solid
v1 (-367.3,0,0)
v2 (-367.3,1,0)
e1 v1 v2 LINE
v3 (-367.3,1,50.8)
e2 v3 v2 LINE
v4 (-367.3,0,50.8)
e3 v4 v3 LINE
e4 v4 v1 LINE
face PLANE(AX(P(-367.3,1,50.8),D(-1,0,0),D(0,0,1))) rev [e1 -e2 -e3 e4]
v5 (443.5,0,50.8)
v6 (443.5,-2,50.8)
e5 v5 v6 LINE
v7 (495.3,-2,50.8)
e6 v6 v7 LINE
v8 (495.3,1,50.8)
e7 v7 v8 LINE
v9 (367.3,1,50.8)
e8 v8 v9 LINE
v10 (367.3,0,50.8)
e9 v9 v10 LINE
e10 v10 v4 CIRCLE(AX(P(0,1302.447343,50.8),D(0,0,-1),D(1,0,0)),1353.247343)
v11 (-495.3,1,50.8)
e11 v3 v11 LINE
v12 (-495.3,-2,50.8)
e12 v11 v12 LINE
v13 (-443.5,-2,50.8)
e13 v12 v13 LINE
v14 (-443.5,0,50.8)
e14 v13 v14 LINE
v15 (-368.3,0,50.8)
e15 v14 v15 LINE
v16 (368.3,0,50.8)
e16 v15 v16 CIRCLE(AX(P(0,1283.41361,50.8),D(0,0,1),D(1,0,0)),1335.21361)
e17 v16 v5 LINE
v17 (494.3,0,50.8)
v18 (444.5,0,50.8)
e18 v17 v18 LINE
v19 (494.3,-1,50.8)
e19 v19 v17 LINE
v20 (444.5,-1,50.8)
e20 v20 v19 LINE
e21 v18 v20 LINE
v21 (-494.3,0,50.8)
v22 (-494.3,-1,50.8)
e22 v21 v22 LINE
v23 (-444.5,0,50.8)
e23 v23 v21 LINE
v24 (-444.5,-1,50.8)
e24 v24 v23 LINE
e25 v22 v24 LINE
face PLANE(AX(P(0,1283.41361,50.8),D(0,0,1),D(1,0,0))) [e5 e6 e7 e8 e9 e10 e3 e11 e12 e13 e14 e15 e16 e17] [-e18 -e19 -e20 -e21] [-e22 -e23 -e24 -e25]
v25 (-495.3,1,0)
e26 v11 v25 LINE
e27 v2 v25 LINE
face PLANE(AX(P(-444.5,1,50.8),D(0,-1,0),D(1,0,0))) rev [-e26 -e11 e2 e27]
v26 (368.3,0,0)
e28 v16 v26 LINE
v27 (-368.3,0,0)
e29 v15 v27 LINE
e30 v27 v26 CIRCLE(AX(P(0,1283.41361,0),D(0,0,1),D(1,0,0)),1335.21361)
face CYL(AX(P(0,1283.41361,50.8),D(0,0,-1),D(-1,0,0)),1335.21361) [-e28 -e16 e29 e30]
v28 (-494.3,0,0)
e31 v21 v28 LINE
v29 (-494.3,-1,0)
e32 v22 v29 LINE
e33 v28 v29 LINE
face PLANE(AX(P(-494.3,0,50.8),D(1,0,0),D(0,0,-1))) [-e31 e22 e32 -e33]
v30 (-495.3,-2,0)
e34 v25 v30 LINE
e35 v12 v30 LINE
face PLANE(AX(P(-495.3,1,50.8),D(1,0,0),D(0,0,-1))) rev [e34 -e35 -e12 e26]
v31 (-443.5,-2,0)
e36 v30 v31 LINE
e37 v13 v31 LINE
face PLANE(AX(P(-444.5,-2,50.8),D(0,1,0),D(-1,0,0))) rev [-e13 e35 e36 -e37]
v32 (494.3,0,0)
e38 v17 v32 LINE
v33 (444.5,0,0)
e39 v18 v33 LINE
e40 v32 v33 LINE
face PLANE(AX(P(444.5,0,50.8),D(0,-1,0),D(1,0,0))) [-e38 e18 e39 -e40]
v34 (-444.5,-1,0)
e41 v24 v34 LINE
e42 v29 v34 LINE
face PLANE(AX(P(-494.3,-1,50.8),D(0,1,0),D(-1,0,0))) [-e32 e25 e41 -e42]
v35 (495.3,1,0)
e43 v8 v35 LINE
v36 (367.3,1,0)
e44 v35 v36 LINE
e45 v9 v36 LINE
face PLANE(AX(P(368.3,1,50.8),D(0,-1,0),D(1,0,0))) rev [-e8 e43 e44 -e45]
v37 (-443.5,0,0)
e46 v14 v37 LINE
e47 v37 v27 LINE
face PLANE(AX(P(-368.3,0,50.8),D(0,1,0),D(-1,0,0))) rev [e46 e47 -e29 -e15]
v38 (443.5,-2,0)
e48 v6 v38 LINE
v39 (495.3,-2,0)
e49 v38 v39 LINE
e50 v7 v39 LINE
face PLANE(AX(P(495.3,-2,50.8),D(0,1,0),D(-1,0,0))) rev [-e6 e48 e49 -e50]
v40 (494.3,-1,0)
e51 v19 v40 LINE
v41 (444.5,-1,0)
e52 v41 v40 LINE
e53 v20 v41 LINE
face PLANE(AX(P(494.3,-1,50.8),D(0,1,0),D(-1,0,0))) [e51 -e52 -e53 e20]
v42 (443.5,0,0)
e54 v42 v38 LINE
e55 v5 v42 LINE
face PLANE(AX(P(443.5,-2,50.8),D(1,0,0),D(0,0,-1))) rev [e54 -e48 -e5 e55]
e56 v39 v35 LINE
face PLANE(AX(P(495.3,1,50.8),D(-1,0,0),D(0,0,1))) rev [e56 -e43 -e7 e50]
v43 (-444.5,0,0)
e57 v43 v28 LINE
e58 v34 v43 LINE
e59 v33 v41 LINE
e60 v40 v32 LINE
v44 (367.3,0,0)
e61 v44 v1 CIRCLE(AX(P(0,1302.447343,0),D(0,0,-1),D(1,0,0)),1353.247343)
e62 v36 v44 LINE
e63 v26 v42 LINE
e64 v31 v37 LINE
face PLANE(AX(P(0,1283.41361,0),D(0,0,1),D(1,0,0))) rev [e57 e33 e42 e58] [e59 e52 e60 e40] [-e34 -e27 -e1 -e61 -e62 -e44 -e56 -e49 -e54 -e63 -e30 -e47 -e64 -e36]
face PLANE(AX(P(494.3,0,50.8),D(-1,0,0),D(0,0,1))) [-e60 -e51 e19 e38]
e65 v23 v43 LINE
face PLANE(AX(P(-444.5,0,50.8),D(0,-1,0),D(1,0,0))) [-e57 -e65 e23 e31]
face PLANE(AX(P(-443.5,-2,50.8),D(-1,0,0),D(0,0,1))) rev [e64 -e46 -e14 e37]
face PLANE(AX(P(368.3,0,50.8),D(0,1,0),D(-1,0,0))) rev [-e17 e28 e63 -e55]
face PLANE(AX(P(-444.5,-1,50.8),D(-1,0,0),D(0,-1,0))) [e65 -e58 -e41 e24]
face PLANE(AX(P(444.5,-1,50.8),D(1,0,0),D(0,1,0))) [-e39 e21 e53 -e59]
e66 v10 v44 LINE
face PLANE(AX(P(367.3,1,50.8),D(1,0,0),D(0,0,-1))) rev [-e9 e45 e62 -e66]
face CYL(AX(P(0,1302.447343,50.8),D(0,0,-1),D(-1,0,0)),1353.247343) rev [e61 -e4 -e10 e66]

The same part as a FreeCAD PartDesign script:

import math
import FreeCAD as App
import Part
import Sketcher

V = App.Vector
Q = App.Units.Quantity

doc = App.newDocument("Part")
body = doc.addObject("PartDesign::Body", "Body")

sketch1 = body.newObject("Sketcher::SketchObject", "Sketch")
sketch1.AttachmentSupport = (doc.getObject("XY_Plane"), [""])
sketch1.MapMode = "FlatFace"
sketch1.addGeometry([
    Part.LineSegment(V(-495.3, 1, 0), V(-495.3, -2, 0)),
    Part.LineSegment(V(-495.3, -2, 0), V(-443.5, -2, 0)),
    Part.LineSegment(V(-443.5, -2, 0), V(-443.5, 0, 0)),
    Part.LineSegment(V(-443.5, 0, 0), V(-368.3, 0, 0)),
    Part.ArcOfCircle(Part.Circle(V(0, 1283.41361, 0), V(0, 0, 1), 1335.21361), math.radians(-106.011841), math.radians(-73.988159)),
    Part.LineSegment(V(368.3, 0, 0), V(443.5, 0, 0)),
    Part.LineSegment(V(443.5, 0, 0), V(443.5, -2, 0)),
    Part.LineSegment(V(443.5, -2, 0), V(495.3, -2, 0)),
    Part.LineSegment(V(495.3, -2, 0), V(495.3, 1, 0)),
    Part.LineSegment(V(495.3, 1, 0), V(367.3, 1, 0)),
    Part.LineSegment(V(367.3, 1, 0), V(367.3, 0, 0)),
    Part.ArcOfCircle(Part.Circle(V(0, 1302.447343, 0), V(0, 0, 1), 1353.247343), math.radians(-105.748853), math.radians(-74.251147)),
    Part.LineSegment(V(-367.3, 0, 0), V(-367.3, 1, 0)),
    Part.LineSegment(V(-367.3, 1, 0), V(-495.3, 1, 0)),
    Part.LineSegment(V(-444.5, -1, 0), V(-494.3, -1, 0)),
    Part.LineSegment(V(-494.3, -1, 0), V(-494.3, 0, 0)),
    Part.LineSegment(V(-494.3, 0, 0), V(-444.5, 0, 0)),
    Part.LineSegment(V(-444.5, 0, 0), V(-444.5, -1, 0)),
    Part.LineSegment(V(494.3, -1, 0), V(444.5, -1, 0)),
    Part.LineSegment(V(444.5, -1, 0), V(444.5, 0, 0)),
    Part.LineSegment(V(444.5, 0, 0), V(494.3, 0, 0)),
    Part.LineSegment(V(494.3, 0, 0), V(494.3, -1, 0)),
], False)
sketch1.addConstraint([
    Sketcher.Constraint("Coincident", 0, 2, 1, 1),
    Sketcher.Constraint("Coincident", 1, 2, 2, 1),
    Sketcher.Constraint("Coincident", 2, 2, 3, 1),
    Sketcher.Constraint("Coincident", 3, 2, 4, 1),
    Sketcher.Constraint("Coincident", 4, 2, 5, 1),
    Sketcher.Constraint("Coincident", 5, 2, 6, 1),
    Sketcher.Constraint("Coincident", 6, 2, 7, 1),
    Sketcher.Constraint("Coincident", 7, 2, 8, 1),
    Sketcher.Constraint("Coincident", 8, 2, 9, 1),
    Sketcher.Constraint("Coincident", 9, 2, 10, 1),
    Sketcher.Constraint("Coincident", 10, 2, 11, 2),
    Sketcher.Constraint("Coincident", 11, 1, 12, 1),
    Sketcher.Constraint("Coincident", 12, 2, 13, 1),
    Sketcher.Constraint("Coincident", 13, 2, 0, 1),
    Sketcher.Constraint("Coincident", 14, 2, 15, 1),
    Sketcher.Constraint("Coincident", 15, 2, 16, 1),
    Sketcher.Constraint("Coincident", 16, 2, 17, 1),
    Sketcher.Constraint("Coincident", 17, 2, 14, 1),
    Sketcher.Constraint("Coincident", 18, 2, 19, 1),
    Sketcher.Constraint("Coincident", 19, 2, 20, 1),
    Sketcher.Constraint("Coincident", 20, 2, 21, 1),
    Sketcher.Constraint("Coincident", 21, 2, 18, 1),
    Sketcher.Constraint("Vertical", 0),
    Sketcher.Constraint("Horizontal", 1),
    Sketcher.Constraint("Vertical", 2),
    Sketcher.Constraint("Horizontal", 3),
    Sketcher.Constraint("Horizontal", 5),
    Sketcher.Constraint("Vertical", 6),
    Sketcher.Constraint("Horizontal", 7),
    Sketcher.Constraint("Vertical", 8),
    Sketcher.Constraint("Horizontal", 9),
    Sketcher.Constraint("Vertical", 10),
    Sketcher.Constraint("Vertical", 12),
    Sketcher.Constraint("Horizontal", 13),
    Sketcher.Constraint("Horizontal", 14),
    Sketcher.Constraint("Vertical", 15),
    Sketcher.Constraint("Horizontal", 16),
    Sketcher.Constraint("Vertical", 17),
    Sketcher.Constraint("Horizontal", 18),
    Sketcher.Constraint("Vertical", 19),
    Sketcher.Constraint("Horizontal", 20),
    Sketcher.Constraint("Vertical", 21),
    Sketcher.Constraint("Symmetric", 2, 2, 5, 2, -1, 1),
    Sketcher.Constraint("Symmetric", 16, 2, 19, 2, -1, 1),
    Sketcher.Constraint("Symmetric", 0, 2, 7, 2, -2),
    Sketcher.Constraint("Symmetric", 9, 2, 12, 2, -2),
    Sketcher.Constraint("Symmetric", 15, 2, 20, 2, -2),
    Sketcher.Constraint("PointOnObject", 4, 3, -2),
    Sketcher.Constraint("PointOnObject", 11, 3, -2),
    Sketcher.Constraint("PointOnObject", 2, 2, -1),
    Sketcher.Constraint("PointOnObject", 10, 2, -1),
    Sketcher.Constraint("Horizontal", 17, 2, 18, 2),
    Sketcher.Constraint("Equal", 12, 15),
    Sketcher.Constraint("DistanceX", 9, 2, 9, 1, Q("128 mm")),
    Sketcher.Constraint("DistanceY", 0, 2, 0, 1, Q("3 mm")),
    Sketcher.Constraint("DistanceY", 2, 1, 2, 2, Q("2 mm")),
    Sketcher.Constraint("DistanceX", 1, 1, 1, 2, Q("51.8 mm")),
    Sketcher.Constraint("DistanceX", 3, 1, 3, 2, Q("75.2 mm")),
    Sketcher.Constraint("DistanceX", 14, 2, 14, 1, Q("49.8 mm")),
    Sketcher.Constraint("DistanceX", 2, 2, 5, 2, Q("887 mm")),
    Sketcher.Constraint("DistanceX", 0, 2, 14, 2, Q("1 mm")),
    Sketcher.Constraint("Radius", 4, Q("1335.21361 mm")),
    Sketcher.Constraint("Radius", 11, Q("1353.247343 mm")),
])
pad1 = body.newObject("PartDesign::Pad", "Pad")
pad1.Profile = sketch1
pad1.Length = 50.8

doc.recompute()
